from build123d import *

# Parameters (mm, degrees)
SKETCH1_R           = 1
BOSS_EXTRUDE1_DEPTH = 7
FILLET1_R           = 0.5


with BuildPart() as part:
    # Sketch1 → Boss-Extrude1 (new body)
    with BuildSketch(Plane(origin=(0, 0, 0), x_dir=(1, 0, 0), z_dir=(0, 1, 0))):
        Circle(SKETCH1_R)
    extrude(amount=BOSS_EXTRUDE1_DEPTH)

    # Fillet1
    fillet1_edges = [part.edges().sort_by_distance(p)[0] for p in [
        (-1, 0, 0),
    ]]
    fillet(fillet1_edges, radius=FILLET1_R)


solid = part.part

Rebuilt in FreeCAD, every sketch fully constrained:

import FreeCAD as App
import Part
import Sketcher
from FreeCAD import Vector
Q = App.Units.Quantity


def edges_at(feature, points):
    """Names of the edges that pass closest to the given points."""
    edges = feature.Shape.Edges
    near = lambda p: min(range(len(edges)), key=lambda i: edges[i].distToShape(Part.Vertex(*p))[0])
    return sorted({f"Edge{near(p) + 1}" for p in points})

doc = App.newDocument("Part")
body = doc.addObject("PartDesign::Body", "Body")

# Sketch on XZ plane
sketch1 = body.newObject("Sketcher::SketchObject", "Sketch")
sketch1.AttachmentSupport = (doc.getObject("XZ_Plane"), [""])
sketch1.MapMode = "FlatFace"
sketch1.addGeometry(Part.Circle(Vector(0, 0, 0), Vector(0, 0, 1), 1), False)
sketch1.addConstraint(Sketcher.Constraint("Coincident", 0, 3, -1, 1))
sketch1.addConstraint(Sketcher.Constraint("Diameter", 0, Q("2 mm")))
pad1 = body.newObject("PartDesign::Pad", "Pad")
pad1.Profile = sketch1
pad1.Length = 7
pad1.Reversed = True
doc.recompute()

fillet = body.newObject("PartDesign::Fillet", "Fillet")
fillet.Base = (pad1, edges_at(pad1, [(-1, 0, 0)]))
fillet.Radius = 0.5

doc.recompute()
